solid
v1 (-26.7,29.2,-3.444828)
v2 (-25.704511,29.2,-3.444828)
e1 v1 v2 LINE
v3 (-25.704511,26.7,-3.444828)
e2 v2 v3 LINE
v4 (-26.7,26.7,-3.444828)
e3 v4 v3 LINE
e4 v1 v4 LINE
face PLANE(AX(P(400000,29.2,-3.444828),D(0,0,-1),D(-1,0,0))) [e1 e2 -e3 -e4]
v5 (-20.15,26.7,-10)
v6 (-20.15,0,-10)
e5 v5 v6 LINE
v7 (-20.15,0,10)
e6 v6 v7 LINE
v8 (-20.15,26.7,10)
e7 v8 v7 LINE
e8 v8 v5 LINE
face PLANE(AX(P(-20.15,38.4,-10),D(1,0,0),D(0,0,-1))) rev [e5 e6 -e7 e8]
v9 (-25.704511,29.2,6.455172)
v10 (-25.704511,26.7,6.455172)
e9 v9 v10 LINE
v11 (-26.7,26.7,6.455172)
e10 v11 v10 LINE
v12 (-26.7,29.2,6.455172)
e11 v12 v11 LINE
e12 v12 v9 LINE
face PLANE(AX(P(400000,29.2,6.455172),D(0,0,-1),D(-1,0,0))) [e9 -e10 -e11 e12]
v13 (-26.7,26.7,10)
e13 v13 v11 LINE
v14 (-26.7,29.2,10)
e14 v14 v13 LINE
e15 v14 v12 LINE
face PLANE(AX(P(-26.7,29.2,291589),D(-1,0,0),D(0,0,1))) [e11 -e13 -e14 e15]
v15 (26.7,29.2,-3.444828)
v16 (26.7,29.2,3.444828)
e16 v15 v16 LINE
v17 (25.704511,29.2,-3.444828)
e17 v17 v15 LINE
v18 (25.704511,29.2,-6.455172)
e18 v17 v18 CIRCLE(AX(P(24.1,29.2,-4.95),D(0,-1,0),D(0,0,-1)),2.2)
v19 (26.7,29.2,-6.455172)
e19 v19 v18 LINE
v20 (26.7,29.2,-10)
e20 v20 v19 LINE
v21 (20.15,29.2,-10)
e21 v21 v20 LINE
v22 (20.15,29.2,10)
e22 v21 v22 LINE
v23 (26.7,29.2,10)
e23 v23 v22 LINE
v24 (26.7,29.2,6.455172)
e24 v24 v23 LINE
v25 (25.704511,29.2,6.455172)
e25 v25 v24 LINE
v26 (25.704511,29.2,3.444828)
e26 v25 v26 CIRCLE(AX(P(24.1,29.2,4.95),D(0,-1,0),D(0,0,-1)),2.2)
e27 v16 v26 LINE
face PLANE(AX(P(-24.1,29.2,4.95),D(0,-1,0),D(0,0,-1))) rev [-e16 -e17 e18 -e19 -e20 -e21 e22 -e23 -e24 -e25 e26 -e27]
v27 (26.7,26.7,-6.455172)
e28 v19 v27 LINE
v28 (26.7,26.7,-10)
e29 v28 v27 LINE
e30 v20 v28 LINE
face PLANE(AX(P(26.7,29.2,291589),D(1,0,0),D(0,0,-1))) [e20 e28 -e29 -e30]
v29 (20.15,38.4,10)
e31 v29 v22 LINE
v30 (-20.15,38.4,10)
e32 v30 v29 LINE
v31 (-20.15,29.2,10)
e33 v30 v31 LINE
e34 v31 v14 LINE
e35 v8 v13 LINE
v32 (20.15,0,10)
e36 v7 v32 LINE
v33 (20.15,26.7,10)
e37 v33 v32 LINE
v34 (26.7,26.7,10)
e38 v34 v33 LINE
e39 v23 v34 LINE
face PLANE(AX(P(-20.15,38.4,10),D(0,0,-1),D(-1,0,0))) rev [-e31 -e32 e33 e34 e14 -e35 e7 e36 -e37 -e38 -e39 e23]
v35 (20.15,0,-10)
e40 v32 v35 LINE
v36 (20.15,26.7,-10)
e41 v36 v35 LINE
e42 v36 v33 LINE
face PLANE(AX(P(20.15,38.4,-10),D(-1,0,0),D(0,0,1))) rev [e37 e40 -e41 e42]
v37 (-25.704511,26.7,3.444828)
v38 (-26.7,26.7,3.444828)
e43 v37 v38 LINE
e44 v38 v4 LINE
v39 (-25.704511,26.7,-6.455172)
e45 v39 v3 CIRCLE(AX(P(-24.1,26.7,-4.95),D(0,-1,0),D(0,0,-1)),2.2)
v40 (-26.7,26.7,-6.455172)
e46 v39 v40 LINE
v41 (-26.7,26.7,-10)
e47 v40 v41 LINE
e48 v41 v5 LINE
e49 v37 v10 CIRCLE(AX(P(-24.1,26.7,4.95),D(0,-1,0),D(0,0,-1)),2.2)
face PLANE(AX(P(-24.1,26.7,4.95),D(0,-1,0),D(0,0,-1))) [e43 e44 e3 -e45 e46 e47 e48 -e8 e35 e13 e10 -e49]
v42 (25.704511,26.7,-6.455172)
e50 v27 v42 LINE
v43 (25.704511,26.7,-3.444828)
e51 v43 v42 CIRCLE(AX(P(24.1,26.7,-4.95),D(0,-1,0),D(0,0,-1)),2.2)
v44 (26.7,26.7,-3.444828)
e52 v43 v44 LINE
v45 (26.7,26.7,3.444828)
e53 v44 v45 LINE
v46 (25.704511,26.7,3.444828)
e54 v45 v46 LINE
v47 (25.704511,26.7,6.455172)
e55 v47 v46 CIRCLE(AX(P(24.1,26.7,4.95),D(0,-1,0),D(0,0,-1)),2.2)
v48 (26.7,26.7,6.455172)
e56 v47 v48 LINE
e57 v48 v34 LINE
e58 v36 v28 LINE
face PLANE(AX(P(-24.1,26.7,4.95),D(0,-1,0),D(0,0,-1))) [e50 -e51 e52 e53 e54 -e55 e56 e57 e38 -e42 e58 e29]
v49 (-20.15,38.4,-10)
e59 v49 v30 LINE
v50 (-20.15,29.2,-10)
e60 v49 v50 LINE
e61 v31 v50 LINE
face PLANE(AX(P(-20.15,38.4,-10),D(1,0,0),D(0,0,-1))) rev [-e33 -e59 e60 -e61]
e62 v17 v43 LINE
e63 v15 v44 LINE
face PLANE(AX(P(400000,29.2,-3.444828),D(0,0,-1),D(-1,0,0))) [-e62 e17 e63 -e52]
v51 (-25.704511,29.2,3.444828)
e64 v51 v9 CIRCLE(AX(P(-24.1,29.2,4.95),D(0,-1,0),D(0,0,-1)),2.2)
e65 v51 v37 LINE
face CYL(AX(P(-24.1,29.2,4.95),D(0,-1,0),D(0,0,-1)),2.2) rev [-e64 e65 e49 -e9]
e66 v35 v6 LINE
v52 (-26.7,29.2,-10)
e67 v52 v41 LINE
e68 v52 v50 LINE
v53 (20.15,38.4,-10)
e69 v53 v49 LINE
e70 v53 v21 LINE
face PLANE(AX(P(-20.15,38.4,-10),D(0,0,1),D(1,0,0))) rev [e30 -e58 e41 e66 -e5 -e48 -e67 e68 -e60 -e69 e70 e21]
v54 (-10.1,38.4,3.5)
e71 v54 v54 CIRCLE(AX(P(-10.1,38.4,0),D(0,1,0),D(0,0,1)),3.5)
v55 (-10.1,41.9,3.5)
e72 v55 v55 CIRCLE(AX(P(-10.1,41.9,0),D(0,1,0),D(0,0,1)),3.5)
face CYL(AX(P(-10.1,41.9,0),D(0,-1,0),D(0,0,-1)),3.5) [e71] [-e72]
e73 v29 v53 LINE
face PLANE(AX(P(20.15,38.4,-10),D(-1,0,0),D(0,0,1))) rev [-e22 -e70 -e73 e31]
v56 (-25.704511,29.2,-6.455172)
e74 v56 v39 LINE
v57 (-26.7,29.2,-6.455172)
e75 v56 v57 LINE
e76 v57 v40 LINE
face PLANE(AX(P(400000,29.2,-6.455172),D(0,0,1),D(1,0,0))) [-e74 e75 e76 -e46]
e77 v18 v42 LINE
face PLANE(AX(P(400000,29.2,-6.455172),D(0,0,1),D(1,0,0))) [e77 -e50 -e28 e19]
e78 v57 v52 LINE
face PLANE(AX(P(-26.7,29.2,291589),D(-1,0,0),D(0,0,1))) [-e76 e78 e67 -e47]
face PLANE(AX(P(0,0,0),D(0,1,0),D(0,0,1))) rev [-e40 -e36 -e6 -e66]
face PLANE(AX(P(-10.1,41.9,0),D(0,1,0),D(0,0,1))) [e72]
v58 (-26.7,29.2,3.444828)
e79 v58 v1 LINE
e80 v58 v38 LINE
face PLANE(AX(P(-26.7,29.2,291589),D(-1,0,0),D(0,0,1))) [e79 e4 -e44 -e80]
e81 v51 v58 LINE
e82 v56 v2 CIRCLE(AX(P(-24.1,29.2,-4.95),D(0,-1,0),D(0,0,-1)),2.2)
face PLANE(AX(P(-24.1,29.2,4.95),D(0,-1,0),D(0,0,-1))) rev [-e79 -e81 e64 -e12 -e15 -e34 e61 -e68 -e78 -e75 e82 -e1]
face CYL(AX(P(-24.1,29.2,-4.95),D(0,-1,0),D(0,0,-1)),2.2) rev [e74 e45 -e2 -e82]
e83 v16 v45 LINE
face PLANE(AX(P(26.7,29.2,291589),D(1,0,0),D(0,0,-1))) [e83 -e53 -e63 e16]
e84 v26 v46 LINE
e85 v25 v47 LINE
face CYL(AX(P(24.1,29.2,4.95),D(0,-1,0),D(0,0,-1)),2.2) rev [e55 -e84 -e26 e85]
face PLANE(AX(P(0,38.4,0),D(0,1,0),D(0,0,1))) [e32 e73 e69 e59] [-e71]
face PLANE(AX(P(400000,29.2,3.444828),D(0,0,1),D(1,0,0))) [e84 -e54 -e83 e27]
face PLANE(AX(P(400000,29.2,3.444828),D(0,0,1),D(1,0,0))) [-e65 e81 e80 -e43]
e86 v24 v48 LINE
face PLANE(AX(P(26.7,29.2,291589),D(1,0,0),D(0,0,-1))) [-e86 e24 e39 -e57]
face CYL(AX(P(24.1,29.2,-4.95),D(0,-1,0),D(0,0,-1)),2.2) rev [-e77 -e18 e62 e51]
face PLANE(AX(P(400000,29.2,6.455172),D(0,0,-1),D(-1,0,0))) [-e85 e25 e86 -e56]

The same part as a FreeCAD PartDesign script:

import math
import FreeCAD as App
import Part
import Sketcher


def add_polygon(sketch, points):
    """Adds a closed chain of lines whose ends are joined by coincident constraints."""
    first, n = sketch.GeometryCount, len(points)
    for a, b in zip(points, points[1:] + points[:1]):
        sketch.addGeometry(Part.LineSegment(App.Vector(*a, 0), App.Vector(*b, 0)), False)
    for i in range(n):
        sketch.addConstraint(Sketcher.Constraint("Coincident", first + i, 2, first + (i + 1) % n, 1))

doc = App.newDocument("Part")
params = doc.addObject("Spreadsheet::Sheet", "Params")
for row, (alias, value) in enumerate([
    ("sketch1_height", "20 mm"),
    ("sketch1_width", "40.3 mm"),
    ("pad1_length", "38.4 mm"),
    ("sketch2_radius", "2.2 mm"),
    ("sketch2_width", "53.4 mm"),
    ("pad2_length", "2.5 mm"),
    ("sketch3_diameter", "7 mm"),
    ("pad3_length", "3.5 mm"),
], start=1):
    params.set(f"A{row}", alias)
    params.set(f"B{row}", "=" + value)
    params.setAlias(f"B{row}", alias)

body = doc.addObject("PartDesign::Body", "Body")

# Sketch on XZ plane
sketch1 = body.newObject("Sketcher::SketchObject", "Sketch")
sketch1.AttachmentSupport = (doc.getObject("XZ_Plane"), [""])
sketch1.MapMode = "FlatFace"
add_polygon(sketch1, [(-20.15, -10), (-20.15, 10), (20.15, 10), (20.15, -10)])  # lines 0-3
sketch1.addConstraint([
    Sketcher.Constraint("Vertical", 0),
    Sketcher.Constraint("Horizontal", 1),
    Sketcher.Constraint("Vertical", 2),
    Sketcher.Constraint("Horizontal", 3),
    Sketcher.Constraint("Symmetric", 0, 2, 2, 2, -1, 1),
    Sketcher.Constraint("DistanceY", 0, 1, 0, 2, 20.0),
    Sketcher.Constraint("DistanceX", 1, 1, 1, 2, 40.3),
])
sketch1.setExpression("Constraints[9]", "Params.sketch1_height")
sketch1.setExpression("Constraints[10]", "Params.sketch1_width")
pad1 = body.newObject("PartDesign::Pad", "Pad")
pad1.Profile = sketch1
pad1.setExpression("Length", "Params.pad1_length")
pad1.Reversed = True

# Sketch on XZ plane
sketch2 = body.newObject("Sketcher::SketchObject", "Sketch001")
sketch2.AttachmentSupport = (doc.getObject("XZ_Plane"), [""])
sketch2.MapMode = "FlatFace"
sketch2.AttachmentOffset = App.Placement(App.Vector(0, 0, -26.7), App.Rotation())
sketch2.addGeometry([
    Part.LineSegment(App.Vector(26.7, -10, 0), App.Vector(-26.7, -10, 0)),  # 0
    Part.LineSegment(App.Vector(-26.7, -10, 0), App.Vector(-26.7, -6.455172, 0)),  # 1
    Part.LineSegment(App.Vector(-26.7, -6.455172, 0), App.Vector(-25.704511, -6.455172, 0)),  # 2
    Part.ArcOfCircle(Part.Circle(App.Vector(-24.1, -4.95, 0), App.Vector(0, 0, 1), 2.2), math.radians(-136.829694), math.radians(136.829694)),  # 3
    Part.LineSegment(App.Vector(-25.704511, -3.444828, 0), App.Vector(-26.7, -3.444828, 0)),  # 4
    Part.LineSegment(App.Vector(-26.7, -3.444828, 0), App.Vector(-26.7, 3.444828, 0)),  # 5
    Part.LineSegment(App.Vector(-26.7, 3.444828, 0), App.Vector(-25.704511, 3.444828, 0)),  # 6
    Part.ArcOfCircle(Part.Circle(App.Vector(-24.1, 4.95, 0), App.Vector(0, 0, 1), 2.2), math.radians(-136.829694), math.radians(136.829694)),  # 7
    Part.LineSegment(App.Vector(-25.704511, 6.455172, 0), App.Vector(-26.7, 6.455172, 0)),  # 8
    Part.LineSegment(App.Vector(-26.7, 6.455172, 0), App.Vector(-26.7, 10, 0)),  # 9
    Part.LineSegment(App.Vector(-26.7, 10, 0), App.Vector(26.7, 10, 0)),  # 10
    Part.LineSegment(App.Vector(26.7, 10, 0), App.Vector(26.7, 6.455172, 0)),  # 11
    Part.LineSegment(App.Vector(26.7, 6.455172, 0), App.Vector(25.704511, 6.455172, 0)),  # 12
    Part.ArcOfCircle(Part.Circle(App.Vector(24.1, 4.95, 0), App.Vector(0, 0, 1), 2.2), math.radians(43.170306), math.radians(316.829694)),  # 13
    Part.LineSegment(App.Vector(25.704511, 3.444828, 0), App.Vector(26.7, 3.444828, 0)),  # 14
    Part.LineSegment(App.Vector(26.7, 3.444828, 0), App.Vector(26.7, -3.444828, 0)),  # 15
    Part.LineSegment(App.Vector(26.7, -3.444828, 0), App.Vector(25.704511, -3.444828, 0)),  # 16
    Part.ArcOfCircle(Part.Circle(App.Vector(24.1, -4.95, 0), App.Vector(0, 0, 1), 2.2), math.radians(43.170306), math.radians(316.829694)),  # 17
    Part.LineSegment(App.Vector(25.704511, -6.455172, 0), App.Vector(26.7, -6.455172, 0)),  # 18
    Part.LineSegment(App.Vector(26.7, -6.455172, 0), App.Vector(26.7, -10, 0)),  # 19
], False)
sketch2.addConstraint([
    Sketcher.Constraint("Coincident", 0, 2, 1, 1),
    Sketcher.Constraint("Coincident", 1, 2, 2, 1),
    Sketcher.Constraint("Coincident", 2, 2, 3, 1),
    Sketcher.Constraint("Coincident", 3, 2, 4, 1),
    Sketcher.Constraint("Coincident", 4, 2, 5, 1),
    Sketcher.Constraint("Coincident", 5, 2, 6, 1),
    Sketcher.Constraint("Coincident", 6, 2, 7, 1),
    Sketcher.Constraint("Coincident", 7, 2, 8, 1),
    Sketcher.Constraint("Coincident", 8, 2, 9, 1),
    Sketcher.Constraint("Coincident", 9, 2, 10, 1),
    Sketcher.Constraint("Coincident", 10, 2, 11, 1),
    Sketcher.Constraint("Coincident", 11, 2, 12, 1),
    Sketcher.Constraint("Coincident", 12, 2, 13, 1),
    Sketcher.Constraint("Coincident", 13, 2, 14, 1),
    Sketcher.Constraint("Coincident", 14, 2, 15, 1),
    Sketcher.Constraint("Coincident", 15, 2, 16, 1),
    Sketcher.Constraint("Coincident", 16, 2, 17, 1),
    Sketcher.Constraint("Coincident", 17, 2, 18, 1),
    Sketcher.Constraint("Coincident", 18, 2, 19, 1),
    Sketcher.Constraint("Coincident", 19, 2, 0, 1),
    Sketcher.Constraint("Horizontal", 0),
    Sketcher.Constraint("Vertical", 1),
    Sketcher.Constraint("Horizontal", 2),
    Sketcher.Constraint("Horizontal", 4),
    Sketcher.Constraint("Vertical", 5),
    Sketcher.Constraint("Horizontal", 6),
    Sketcher.Constraint("Horizontal", 8),
    Sketcher.Constraint("Vertical", 9),
    Sketcher.Constraint("Horizontal", 10),
    Sketcher.Constraint("Vertical", 11),
    Sketcher.Constraint("Horizontal", 12),
    Sketcher.Constraint("Horizontal", 14),
    Sketcher.Constraint("Vertical", 15),
    Sketcher.Constraint("Horizontal", 16),
    Sketcher.Constraint("Horizontal", 18),
    Sketcher.Constraint("Vertical", 19),
    Sketcher.Constraint("Equal", 3, 7),
    Sketcher.Constraint("Equal", 7, 13),
    Sketcher.Constraint("Equal", 13, 17),
    Sketcher.Constraint("Symmetric", 3, 3, 13, 3, -1, 1),
    Sketcher.Constraint("Symmetric", 7, 3, 17, 3, -1, 1),
    Sketcher.Constraint("Symmetric", 0, 2, 10, 2, -1, 1),
    Sketcher.Constraint("Symmetric", 4, 2, 14, 2, -1, 1),
    Sketcher.Constraint("Symmetric", 8, 2, 18, 2, -1, 1),
    Sketcher.Constraint("Symmetric", 7, 3, 13, 3, -2),
    Sketcher.Constraint("Symmetric", 8, 2, 11, 2, -2),
    Sketcher.Constraint("Horizontal", 6, 2, 13, 2),
    Sketcher.Constraint("Horizontal", 4, 2, 15, 2),
    Sketcher.Constraint("Horizontal", 2, 2, 17, 2),
    Sketcher.Constraint("Vertical", 2, 2, 3, 2),
    Sketcher.Constraint("Vertical", 1, 2, 4, 2),
    Sketcher.Constraint("Radius", 3, 2.2),
    Sketcher.Constraint("DistanceX", 0, 2, 0, 1, 53.4),
    Sketcher.Constraint("DistanceY", 0, 2, -1, 1, 10.0),
    Sketcher.Constraint("DistanceX", 3, 3, -1, 1, 24.1),
    Sketcher.Constraint("DistanceY", 3, 3, 7, 3, 9.9),
    Sketcher.Constraint("DistanceX", 2, 1, 2, 2, 0.995489),
])
sketch2.setExpression("Constraints[51]", "Params.sketch2_radius")
sketch2.setExpression("Constraints[52]", "Params.sketch2_width")
pad2 = body.newObject("PartDesign::Pad", "Pad001")
pad2.Profile = sketch2
pad2.setExpression("Length", "Params.pad2_length")
pad2.Reversed = True

# Sketch on XZ plane
sketch3 = body.newObject("Sketcher::SketchObject", "Sketch002")
sketch3.AttachmentSupport = (doc.getObject("XZ_Plane"), [""])
sketch3.MapMode = "FlatFace"
sketch3.AttachmentOffset = App.Placement(App.Vector(0, 0, -38.4), App.Rotation())
sketch3.addGeometry(Part.Circle(App.Vector(-10.1, 0, 0), App.Vector(0, 0, 1), 3.5), False)
sketch3.addConstraint([
    Sketcher.Constraint("PointOnObject", 0, 3, -1),
    Sketcher.Constraint("Diameter", 0, 7.0),
    Sketcher.Constraint("DistanceX", 0, 3, -1, 1, 10.1),
])
sketch3.setExpression("Constraints[1]", "Params.sketch3_diameter")
pad3 = body.newObject("PartDesign::Pad", "Pad002")
pad3.Profile = sketch3
pad3.setExpression("Length", "Params.pad3_length")
pad3.Reversed = True

doc.recompute()
